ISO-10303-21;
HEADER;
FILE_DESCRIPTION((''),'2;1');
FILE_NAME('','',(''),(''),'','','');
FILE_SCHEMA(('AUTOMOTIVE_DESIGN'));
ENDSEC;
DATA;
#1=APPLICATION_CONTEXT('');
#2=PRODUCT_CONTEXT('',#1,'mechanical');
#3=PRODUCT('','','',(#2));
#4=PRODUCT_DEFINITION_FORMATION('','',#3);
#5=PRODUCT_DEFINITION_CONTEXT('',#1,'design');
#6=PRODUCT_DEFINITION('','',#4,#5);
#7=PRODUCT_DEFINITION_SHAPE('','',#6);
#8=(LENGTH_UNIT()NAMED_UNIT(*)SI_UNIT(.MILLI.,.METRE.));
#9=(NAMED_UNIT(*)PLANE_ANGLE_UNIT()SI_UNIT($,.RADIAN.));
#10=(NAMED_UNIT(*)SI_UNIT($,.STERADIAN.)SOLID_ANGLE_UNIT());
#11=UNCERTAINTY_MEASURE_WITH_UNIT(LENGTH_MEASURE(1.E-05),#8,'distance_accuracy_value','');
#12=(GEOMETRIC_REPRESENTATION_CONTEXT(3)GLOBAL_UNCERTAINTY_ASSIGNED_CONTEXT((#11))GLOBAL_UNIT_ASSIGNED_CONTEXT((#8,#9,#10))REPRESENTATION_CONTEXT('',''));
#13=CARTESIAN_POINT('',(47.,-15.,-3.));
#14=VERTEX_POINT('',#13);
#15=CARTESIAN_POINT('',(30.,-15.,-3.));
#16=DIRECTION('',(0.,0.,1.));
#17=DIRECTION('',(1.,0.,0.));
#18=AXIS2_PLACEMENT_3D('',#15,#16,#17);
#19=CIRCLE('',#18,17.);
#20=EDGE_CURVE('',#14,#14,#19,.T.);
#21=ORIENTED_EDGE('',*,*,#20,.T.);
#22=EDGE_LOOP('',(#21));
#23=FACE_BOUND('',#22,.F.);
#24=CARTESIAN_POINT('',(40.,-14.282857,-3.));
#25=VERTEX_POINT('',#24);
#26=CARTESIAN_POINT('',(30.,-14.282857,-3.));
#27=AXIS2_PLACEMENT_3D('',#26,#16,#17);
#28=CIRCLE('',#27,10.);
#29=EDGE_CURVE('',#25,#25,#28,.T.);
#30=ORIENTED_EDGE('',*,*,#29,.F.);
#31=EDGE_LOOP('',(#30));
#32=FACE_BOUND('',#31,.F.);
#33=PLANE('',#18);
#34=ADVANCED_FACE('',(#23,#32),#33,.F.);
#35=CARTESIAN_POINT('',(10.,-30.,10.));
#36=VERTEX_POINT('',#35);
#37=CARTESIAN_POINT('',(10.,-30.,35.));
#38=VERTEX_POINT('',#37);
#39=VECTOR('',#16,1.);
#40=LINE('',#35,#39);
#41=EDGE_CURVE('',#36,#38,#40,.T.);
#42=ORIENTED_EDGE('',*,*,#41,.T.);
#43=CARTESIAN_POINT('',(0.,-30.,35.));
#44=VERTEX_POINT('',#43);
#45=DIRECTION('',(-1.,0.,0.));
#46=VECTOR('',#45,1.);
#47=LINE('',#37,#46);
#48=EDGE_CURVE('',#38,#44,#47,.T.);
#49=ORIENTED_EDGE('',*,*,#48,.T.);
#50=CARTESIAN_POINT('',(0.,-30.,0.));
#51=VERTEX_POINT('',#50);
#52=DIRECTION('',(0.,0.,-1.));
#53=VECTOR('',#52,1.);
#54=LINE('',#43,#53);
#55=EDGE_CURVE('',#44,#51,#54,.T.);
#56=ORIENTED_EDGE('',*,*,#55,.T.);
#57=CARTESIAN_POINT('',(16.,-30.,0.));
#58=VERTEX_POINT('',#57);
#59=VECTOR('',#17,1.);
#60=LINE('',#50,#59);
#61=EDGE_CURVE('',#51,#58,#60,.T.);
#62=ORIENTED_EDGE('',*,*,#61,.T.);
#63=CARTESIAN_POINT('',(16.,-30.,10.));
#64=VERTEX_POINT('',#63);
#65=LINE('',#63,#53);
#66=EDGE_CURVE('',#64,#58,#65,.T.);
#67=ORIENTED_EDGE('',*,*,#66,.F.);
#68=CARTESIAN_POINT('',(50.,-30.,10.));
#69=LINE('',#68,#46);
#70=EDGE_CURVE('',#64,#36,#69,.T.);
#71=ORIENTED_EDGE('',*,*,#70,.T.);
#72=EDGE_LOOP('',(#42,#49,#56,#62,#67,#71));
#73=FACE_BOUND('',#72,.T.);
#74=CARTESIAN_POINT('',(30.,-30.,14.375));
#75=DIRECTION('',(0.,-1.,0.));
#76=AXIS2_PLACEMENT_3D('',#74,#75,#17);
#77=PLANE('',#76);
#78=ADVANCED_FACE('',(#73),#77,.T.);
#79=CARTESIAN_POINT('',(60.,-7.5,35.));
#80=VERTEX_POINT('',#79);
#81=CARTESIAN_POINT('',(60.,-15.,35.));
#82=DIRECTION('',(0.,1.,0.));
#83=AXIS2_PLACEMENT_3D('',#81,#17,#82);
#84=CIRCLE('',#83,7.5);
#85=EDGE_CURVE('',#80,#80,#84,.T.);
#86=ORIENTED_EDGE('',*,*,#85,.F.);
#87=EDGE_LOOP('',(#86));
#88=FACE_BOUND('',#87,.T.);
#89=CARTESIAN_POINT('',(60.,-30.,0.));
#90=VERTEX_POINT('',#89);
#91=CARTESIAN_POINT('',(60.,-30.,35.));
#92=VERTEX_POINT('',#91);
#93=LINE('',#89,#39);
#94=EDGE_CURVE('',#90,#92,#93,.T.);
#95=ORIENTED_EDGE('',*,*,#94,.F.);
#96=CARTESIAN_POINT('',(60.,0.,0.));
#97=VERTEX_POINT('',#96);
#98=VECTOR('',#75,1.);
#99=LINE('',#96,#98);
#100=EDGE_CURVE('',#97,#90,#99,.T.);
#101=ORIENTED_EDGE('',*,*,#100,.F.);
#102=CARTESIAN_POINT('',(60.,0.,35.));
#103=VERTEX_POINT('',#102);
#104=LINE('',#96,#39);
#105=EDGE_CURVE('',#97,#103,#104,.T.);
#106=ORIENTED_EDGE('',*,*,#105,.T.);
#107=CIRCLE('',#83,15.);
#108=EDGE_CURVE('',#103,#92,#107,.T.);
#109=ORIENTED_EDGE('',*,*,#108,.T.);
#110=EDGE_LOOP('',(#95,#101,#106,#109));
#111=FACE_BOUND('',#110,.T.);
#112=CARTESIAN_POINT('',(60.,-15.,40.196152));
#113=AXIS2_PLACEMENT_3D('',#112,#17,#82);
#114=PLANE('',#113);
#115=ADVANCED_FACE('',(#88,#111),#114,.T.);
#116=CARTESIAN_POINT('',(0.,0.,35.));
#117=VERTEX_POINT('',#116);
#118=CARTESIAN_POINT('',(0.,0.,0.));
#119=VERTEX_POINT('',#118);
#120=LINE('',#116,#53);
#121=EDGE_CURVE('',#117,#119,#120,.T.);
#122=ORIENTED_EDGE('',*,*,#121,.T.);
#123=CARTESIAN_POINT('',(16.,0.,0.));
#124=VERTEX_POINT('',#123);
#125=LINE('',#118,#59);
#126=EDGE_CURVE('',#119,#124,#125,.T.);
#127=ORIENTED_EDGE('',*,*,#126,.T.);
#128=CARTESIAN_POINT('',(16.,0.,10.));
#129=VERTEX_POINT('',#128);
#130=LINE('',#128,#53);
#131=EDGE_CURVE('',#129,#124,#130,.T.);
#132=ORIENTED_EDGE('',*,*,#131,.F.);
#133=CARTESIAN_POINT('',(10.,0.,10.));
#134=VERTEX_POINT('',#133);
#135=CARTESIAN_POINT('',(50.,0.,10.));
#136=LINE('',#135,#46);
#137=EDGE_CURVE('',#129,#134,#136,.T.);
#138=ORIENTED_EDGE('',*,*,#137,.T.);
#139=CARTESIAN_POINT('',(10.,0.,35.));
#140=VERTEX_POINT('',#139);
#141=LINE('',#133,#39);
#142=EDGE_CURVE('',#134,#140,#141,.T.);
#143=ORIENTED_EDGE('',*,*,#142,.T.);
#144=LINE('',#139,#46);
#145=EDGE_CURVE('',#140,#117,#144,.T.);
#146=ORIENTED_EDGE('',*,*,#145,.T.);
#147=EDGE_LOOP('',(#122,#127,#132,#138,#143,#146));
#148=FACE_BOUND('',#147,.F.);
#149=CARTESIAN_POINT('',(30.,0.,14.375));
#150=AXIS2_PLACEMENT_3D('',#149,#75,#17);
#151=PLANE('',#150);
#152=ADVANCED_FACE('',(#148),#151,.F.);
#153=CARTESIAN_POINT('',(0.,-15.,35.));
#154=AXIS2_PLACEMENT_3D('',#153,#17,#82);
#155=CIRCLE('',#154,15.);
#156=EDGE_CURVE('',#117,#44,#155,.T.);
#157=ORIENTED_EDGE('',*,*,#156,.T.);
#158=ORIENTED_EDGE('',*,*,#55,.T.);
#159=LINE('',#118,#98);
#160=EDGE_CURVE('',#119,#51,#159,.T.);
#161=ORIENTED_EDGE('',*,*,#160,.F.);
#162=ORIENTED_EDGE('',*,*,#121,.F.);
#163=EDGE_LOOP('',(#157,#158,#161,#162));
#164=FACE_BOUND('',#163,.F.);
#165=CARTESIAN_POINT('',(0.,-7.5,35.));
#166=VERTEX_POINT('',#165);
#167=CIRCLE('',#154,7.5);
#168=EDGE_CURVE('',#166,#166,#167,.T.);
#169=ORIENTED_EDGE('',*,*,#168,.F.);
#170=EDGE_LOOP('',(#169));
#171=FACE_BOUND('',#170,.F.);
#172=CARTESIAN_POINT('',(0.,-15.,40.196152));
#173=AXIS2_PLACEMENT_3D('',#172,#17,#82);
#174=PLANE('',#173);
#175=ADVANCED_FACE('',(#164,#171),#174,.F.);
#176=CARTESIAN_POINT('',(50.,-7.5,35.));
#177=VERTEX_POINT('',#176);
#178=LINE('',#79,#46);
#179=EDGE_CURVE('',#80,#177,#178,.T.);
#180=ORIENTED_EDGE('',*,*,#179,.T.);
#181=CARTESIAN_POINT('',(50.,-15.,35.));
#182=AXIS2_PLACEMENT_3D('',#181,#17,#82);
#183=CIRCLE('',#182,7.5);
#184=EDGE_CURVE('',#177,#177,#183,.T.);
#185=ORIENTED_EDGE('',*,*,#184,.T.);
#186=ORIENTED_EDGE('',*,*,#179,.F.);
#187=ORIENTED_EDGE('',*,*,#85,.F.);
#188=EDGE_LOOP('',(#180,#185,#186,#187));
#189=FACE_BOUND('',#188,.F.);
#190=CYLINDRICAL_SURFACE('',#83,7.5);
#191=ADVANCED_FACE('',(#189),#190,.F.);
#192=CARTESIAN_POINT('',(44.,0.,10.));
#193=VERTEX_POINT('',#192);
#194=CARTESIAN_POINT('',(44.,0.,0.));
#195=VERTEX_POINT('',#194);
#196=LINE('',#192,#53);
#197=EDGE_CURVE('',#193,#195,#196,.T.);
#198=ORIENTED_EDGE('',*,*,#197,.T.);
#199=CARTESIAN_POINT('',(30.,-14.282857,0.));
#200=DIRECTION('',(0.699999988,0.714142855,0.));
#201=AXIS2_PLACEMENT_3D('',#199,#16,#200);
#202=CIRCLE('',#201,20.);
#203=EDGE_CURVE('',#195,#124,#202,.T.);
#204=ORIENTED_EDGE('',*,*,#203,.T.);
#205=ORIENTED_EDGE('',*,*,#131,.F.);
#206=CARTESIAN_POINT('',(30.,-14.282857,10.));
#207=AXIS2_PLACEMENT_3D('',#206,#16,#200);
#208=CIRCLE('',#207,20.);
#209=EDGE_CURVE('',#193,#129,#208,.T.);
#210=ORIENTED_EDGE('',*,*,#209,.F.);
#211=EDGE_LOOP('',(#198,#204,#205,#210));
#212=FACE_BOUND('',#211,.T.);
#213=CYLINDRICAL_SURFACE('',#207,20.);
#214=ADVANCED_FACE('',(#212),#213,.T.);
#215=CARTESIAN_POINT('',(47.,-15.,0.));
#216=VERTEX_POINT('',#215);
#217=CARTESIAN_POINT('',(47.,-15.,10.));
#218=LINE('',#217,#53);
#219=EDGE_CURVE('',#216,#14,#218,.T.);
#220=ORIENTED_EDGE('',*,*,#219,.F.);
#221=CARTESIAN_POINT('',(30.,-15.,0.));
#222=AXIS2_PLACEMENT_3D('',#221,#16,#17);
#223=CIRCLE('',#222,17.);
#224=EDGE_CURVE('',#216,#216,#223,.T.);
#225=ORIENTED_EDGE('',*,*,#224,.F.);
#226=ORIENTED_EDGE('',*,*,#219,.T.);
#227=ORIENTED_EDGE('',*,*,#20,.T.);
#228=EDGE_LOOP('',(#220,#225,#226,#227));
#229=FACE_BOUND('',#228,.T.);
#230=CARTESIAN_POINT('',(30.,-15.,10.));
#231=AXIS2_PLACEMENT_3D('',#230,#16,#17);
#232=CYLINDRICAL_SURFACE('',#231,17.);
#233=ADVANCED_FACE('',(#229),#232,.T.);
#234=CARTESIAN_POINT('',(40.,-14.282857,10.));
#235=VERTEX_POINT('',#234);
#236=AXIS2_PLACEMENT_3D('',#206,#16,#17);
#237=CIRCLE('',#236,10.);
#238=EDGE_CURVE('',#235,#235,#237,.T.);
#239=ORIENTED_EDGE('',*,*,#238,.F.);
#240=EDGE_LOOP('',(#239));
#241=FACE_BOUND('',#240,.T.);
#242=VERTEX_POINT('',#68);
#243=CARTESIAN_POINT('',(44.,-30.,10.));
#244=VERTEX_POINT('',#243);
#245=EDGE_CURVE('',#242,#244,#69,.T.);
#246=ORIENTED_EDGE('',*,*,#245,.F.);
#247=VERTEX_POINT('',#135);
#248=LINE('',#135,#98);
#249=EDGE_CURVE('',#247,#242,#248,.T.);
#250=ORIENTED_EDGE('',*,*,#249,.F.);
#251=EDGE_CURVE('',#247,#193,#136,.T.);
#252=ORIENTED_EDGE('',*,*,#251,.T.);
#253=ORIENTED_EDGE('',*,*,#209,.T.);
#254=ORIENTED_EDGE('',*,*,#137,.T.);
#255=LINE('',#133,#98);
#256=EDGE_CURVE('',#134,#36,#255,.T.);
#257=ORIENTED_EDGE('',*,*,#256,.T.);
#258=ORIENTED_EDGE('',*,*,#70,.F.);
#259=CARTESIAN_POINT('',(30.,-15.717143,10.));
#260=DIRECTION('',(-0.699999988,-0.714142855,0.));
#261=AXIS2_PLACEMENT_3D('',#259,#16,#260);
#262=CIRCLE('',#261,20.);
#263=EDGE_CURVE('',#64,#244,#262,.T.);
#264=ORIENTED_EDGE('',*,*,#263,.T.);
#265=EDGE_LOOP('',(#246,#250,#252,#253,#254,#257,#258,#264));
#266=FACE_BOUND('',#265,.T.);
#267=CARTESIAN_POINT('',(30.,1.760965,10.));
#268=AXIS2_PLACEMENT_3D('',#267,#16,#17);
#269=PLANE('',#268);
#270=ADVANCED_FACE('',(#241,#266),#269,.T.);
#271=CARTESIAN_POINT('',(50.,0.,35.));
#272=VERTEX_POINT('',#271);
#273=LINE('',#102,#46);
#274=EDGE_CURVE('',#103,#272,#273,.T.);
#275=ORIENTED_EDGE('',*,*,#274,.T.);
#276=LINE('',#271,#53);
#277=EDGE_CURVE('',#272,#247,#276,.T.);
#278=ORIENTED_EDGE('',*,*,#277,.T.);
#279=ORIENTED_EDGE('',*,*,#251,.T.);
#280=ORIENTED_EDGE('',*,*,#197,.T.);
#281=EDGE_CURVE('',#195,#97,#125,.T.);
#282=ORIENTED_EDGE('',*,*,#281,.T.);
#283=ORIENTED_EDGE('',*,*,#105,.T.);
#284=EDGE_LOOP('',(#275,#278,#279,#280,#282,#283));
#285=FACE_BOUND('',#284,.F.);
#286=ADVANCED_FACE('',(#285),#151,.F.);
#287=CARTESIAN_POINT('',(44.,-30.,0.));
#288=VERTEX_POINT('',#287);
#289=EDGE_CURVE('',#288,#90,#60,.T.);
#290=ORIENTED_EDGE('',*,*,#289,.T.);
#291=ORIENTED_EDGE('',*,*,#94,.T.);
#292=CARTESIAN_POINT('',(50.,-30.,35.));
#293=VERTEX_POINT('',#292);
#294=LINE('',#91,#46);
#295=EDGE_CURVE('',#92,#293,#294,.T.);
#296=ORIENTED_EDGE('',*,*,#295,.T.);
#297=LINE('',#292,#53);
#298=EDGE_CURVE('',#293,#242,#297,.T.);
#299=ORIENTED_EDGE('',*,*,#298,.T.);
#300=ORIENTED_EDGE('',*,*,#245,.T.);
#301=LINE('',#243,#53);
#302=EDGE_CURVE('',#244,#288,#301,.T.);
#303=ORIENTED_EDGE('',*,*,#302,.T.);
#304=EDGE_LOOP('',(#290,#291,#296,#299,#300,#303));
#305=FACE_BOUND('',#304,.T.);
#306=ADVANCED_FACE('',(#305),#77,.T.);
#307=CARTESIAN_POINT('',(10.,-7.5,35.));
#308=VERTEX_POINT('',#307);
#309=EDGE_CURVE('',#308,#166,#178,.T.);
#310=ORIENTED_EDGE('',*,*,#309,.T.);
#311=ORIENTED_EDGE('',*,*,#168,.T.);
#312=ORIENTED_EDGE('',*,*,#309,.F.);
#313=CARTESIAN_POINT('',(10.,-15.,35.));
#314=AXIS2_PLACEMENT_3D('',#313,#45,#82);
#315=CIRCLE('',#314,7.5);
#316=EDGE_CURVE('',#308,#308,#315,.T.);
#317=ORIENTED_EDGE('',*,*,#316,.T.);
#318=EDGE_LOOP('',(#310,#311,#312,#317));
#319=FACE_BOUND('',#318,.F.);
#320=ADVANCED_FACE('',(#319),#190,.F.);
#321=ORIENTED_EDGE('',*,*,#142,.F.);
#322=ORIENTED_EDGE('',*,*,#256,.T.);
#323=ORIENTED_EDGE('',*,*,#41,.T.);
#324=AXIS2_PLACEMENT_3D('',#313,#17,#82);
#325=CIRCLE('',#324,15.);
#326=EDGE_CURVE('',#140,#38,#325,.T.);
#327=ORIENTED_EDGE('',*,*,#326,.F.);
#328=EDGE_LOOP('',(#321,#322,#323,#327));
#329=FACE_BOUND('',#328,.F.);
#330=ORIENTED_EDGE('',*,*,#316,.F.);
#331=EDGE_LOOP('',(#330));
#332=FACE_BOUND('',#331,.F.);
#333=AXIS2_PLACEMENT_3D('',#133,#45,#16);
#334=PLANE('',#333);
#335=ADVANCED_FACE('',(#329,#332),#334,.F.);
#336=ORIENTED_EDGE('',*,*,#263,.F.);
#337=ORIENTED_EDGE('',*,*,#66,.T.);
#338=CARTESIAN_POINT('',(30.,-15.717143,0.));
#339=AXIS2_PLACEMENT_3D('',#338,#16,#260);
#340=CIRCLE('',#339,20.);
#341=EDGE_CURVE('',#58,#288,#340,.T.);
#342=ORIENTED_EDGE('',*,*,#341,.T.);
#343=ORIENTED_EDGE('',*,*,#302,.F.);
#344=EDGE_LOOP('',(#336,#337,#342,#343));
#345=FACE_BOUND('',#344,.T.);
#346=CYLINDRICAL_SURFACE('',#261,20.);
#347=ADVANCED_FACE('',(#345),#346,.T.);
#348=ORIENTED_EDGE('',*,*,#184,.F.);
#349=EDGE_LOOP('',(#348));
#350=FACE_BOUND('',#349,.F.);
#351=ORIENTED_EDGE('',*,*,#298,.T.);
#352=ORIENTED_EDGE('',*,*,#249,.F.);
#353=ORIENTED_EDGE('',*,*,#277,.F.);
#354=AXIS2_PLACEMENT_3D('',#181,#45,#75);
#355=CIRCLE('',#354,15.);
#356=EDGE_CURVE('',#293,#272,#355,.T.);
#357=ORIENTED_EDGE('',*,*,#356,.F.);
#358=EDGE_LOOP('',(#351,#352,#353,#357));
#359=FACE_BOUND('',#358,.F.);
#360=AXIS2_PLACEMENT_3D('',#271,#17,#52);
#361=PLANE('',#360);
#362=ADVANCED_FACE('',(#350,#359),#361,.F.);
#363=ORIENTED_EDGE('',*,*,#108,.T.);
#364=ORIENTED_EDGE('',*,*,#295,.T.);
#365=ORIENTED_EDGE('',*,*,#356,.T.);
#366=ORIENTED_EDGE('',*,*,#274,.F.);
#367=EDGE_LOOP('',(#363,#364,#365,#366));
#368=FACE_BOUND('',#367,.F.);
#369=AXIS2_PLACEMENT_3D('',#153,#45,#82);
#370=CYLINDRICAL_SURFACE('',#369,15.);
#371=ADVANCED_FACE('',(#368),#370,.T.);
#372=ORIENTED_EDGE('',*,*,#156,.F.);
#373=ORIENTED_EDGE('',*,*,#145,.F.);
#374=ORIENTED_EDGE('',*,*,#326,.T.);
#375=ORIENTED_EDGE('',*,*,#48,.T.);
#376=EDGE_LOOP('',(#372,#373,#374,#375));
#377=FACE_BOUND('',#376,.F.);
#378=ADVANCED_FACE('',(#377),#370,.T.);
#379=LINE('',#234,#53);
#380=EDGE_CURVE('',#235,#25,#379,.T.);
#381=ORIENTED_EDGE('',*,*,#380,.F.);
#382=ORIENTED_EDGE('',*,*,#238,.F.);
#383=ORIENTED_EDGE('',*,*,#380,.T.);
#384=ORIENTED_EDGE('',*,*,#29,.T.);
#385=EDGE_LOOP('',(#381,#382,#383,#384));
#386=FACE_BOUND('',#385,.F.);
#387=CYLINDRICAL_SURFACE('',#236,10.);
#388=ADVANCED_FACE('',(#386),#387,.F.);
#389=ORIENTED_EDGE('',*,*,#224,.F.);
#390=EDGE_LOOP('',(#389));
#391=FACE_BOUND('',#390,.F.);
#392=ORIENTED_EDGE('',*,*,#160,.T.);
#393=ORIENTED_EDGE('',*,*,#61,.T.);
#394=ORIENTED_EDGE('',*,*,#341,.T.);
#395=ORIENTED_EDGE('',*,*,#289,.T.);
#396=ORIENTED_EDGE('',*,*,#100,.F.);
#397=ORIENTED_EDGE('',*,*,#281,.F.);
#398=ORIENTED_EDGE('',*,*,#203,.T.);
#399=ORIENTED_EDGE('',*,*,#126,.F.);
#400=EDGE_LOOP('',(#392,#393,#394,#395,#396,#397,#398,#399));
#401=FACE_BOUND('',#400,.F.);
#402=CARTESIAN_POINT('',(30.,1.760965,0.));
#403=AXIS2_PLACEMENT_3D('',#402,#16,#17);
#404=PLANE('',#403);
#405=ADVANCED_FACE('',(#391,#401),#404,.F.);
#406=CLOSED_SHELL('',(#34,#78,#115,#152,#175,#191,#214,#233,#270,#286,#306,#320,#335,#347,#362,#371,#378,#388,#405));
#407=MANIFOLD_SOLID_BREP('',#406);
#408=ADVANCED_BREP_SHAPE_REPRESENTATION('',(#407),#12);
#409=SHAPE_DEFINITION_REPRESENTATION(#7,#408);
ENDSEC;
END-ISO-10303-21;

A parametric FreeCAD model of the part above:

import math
import FreeCAD as App
import Part
import Sketcher

V = App.Vector
Q = App.Units.Quantity


def add_polygon(sketch, points):
    """Adds a closed chain of lines whose ends are joined by coincident constraints."""
    first, n = sketch.GeometryCount, len(points)
    for a, b in zip(points, points[1:] + points[:1]):
        sketch.addGeometry(Part.LineSegment(App.Vector(*a, 0), App.Vector(*b, 0)), False)
    for i in range(n):
        sketch.addConstraint(Sketcher.Constraint("Coincident", first + i, 2, first + (i + 1) % n, 1))

doc = App.newDocument("Part")
body = doc.addObject("PartDesign::Body", "Body")

# Sketch on XZ plane
sketch1 = body.newObject("Sketcher::SketchObject", "Sketch")
sketch1.AttachmentSupport = (doc.getObject("XZ_Plane"), [""])
sketch1.MapMode = "FlatFace"
add_polygon(sketch1, [(0, 35), (0, 0), (60, 0), (60, 35), (50, 35), (50, 10), (10, 10), (10, 35)])  # lines 0-7
sketch1.addConstraint(Sketcher.Constraint("Vertical", 0))
sketch1.addConstraint(Sketcher.Constraint("Horizontal", 1))
sketch1.addConstraint(Sketcher.Constraint("Vertical", 2))
sketch1.addConstraint(Sketcher.Constraint("Horizontal", 3))
sketch1.addConstraint(Sketcher.Constraint("Vertical", 4))
sketch1.addConstraint(Sketcher.Constraint("Horizontal", 5))
sketch1.addConstraint(Sketcher.Constraint("Vertical", 6))
sketch1.addConstraint(Sketcher.Constraint("Horizontal", 7))
sketch1.addConstraint(Sketcher.Constraint("Coincident", 0, 2, -1, 1))
sketch1.addConstraint(Sketcher.Constraint("Horizontal", 3, 2, 6, 2))
sketch1.addConstraint(Sketcher.Constraint("Equal", 3, 7))
sketch1.addConstraint(Sketcher.Constraint("DistanceX", 1, 1, 1, 2, Q("60 mm")))
sketch1.addConstraint(Sketcher.Constraint("DistanceX", 3, 2, 3, 1, Q("10 mm")))
sketch1.addConstraint(Sketcher.Constraint("DistanceY", 0, 2, 0, 1, Q("35 mm")))
sketch1.addConstraint(Sketcher.Constraint("DistanceY", 4, 2, 4, 1, Q("25 mm")))
pad1 = body.newObject("PartDesign::Pad", "Pad")
pad1.Profile = sketch1
pad1.Length = 30

# Sketch on YZ plane
sketch2 = body.newObject("Sketcher::SketchObject", "Sketch001")
sketch2.AttachmentSupport = (doc.getObject("YZ_Plane"), [""])
sketch2.MapMode = "FlatFace"
sketch2.addGeometry(Part.LineSegment(V(-30, 35, 0), V(0, 35, 0)), False)
sketch2.addGeometry(Part.ArcOfCircle(Part.Circle(V(-15, 35, 0), V(0, 0, 1), 15), math.radians(0), math.radians(180)), False)
sketch2.addConstraint(Sketcher.Constraint("Coincident", 0, 1, 1, 2))
sketch2.addConstraint(Sketcher.Constraint("Coincident", 1, 1, 0, 2))
sketch2.addConstraint(Sketcher.Constraint("Horizontal", 0))
sketch2.addConstraint(Sketcher.Constraint("PointOnObject", 1, 1, -2))
sketch2.addConstraint(Sketcher.Constraint("Horizontal", 1, 3, 0, 1))
sketch2.addConstraint(Sketcher.Constraint("Radius", 1, Q("15 mm")))
sketch2.addConstraint(Sketcher.Constraint("DistanceY", -1, 1, 1, 3, Q("35 mm")))
pad2 = body.newObject("PartDesign::Pad", "Pad001")
pad2.Profile = sketch2
pad2.Length = 60

# Sketch on YZ plane
sketch3 = body.newObject("Sketcher::SketchObject", "Sketch002")
sketch3.AttachmentSupport = (doc.getObject("YZ_Plane"), [""])
sketch3.MapMode = "FlatFace"
sketch3.AttachmentOffset = App.Placement(V(0, 0, 60), App.Rotation())
sketch3.addGeometry(Part.Circle(V(-15, 35, 0), V(0, 0, 1), 7.5), False)
sketch3.addConstraint(Sketcher.Constraint("Diameter", 0, Q("15 mm")))
sketch3.addConstraint(Sketcher.Constraint("DistanceX", 0, 3, -1, 1, Q("15 mm")))
sketch3.addConstraint(Sketcher.Constraint("DistanceY", -1, 1, 0, 3, Q("35 mm")))
pocket1 = body.newObject("PartDesign::Pocket", "Pocket")
pocket1.Profile = sketch3
pocket1.Type = "ThroughAll"

# Sketch on XZ plane
sketch4 = body.newObject("Sketcher::SketchObject", "Sketch003")
sketch4.AttachmentSupport = (doc.getObject("XZ_Plane"), [""])
sketch4.MapMode = "FlatFace"
add_polygon(sketch4, [(10, 50), (10, 10), (50, 10), (50, 50)])  # lines 0-3
sketch4.addConstraint(Sketcher.Constraint("Vertical", 0))
sketch4.addConstraint(Sketcher.Constraint("Horizontal", 1))
sketch4.addConstraint(Sketcher.Constraint("Vertical", 2))
sketch4.addConstraint(Sketcher.Constraint("Horizontal", 3))
sketch4.addConstraint(Sketcher.Constraint("Equal", 3, 0))
sketch4.addConstraint(Sketcher.Constraint("DistanceX", 1, 1, 1, 2, Q("40 mm")))
sketch4.addConstraint(Sketcher.Constraint("DistanceX", -1, 1, 0, 2, Q("10 mm")))
sketch4.addConstraint(Sketcher.Constraint("DistanceY", -1, 1, 0, 2, Q("10 mm")))
pocket2 = body.newObject("PartDesign::Pocket", "Pocket001")
pocket2.Profile = sketch4
pocket2.Type = "ThroughAll"
pocket2.Reversed = True

# Sketch on XY plane
sketch5 = body.newObject("Sketcher::SketchObject", "Sketch004")
sketch5.AttachmentSupport = (doc.getObject("XY_Plane"), [""])
sketch5.MapMode = "FlatFace"
sketch5.AttachmentOffset = App.Placement(V(0, 0, 10), App.Rotation())
sketch5.addGeometry(Part.Circle(V(30, -15, 0), V(0, 0, 1), 17), False)
sketch5.addConstraint(Sketcher.Constraint("Diameter", 0, Q("34 mm")))
sketch5.addConstraint(Sketcher.Constraint("DistanceX", -1, 1, 0, 3, Q("30 mm")))
sketch5.addConstraint(Sketcher.Constraint("DistanceY", 0, 3, -1, 1, Q("15 mm")))
pad3 = body.newObject("PartDesign::Pad", "Pad002")
pad3.Profile = sketch5
pad3.Length = 13
pad3.Reversed = True

# Sketch on XY plane
sketch6 = body.newObject("Sketcher::SketchObject", "Sketch005")
sketch6.AttachmentSupport = (doc.getObject("XY_Plane"), [""])
sketch6.MapMode = "FlatFace"
sketch6.AttachmentOffset = App.Placement(V(0, 0, 10), App.Rotation())
sketch6.addGeometry(Part.LineSegment(V(16, 0, 0), V(44, 0, 0)), False)
sketch6.addGeometry(Part.ArcOfCircle(Part.Circle(V(30, -14.282857, 0), V(0, 0, 1), 20), math.radians(45.572997), math.radians(134.427003)), False)
sketch6.addGeometry(Part.LineSegment(V(44, -30, 0), V(16, -30, 0)), False)
sketch6.addGeometry(Part.ArcOfCircle(Part.Circle(V(30, -15.717143, 0), V(0, 0, 1), 20), math.radians(-134.427003), math.radians(-45.572997)), False)
sketch6.addConstraint(Sketcher.Constraint("Coincident", 0, 1, 1, 2))
sketch6.addConstraint(Sketcher.Constraint("Coincident", 1, 1, 0, 2))
sketch6.addConstraint(Sketcher.Constraint("Coincident", 2, 1, 3, 2))
sketch6.addConstraint(Sketcher.Constraint("Coincident", 3, 1, 2, 2))
sketch6.addConstraint(Sketcher.Constraint("Horizontal", 0))
sketch6.addConstraint(Sketcher.Constraint("Horizontal", 2))
sketch6.addConstraint(Sketcher.Constraint("Equal", 1, 3))
sketch6.addConstraint(Sketcher.Constraint("PointOnObject", 0, 1, -1))
sketch6.addConstraint(Sketcher.Constraint("Vertical", 1, 3, 3, 3))
sketch6.addConstraint(Sketcher.Constraint("Vertical", 1, 1, 2, 1))
sketch6.addConstraint(Sketcher.Constraint("Radius", 1, Q("20 mm")))
sketch6.addConstraint(Sketcher.Constraint("DistanceX", 0, 1, 0, 2, Q("28 mm")))
sketch6.addConstraint(Sketcher.Constraint("DistanceX", -1, 1, 1, 3, Q("30 mm")))
sketch6.addConstraint(Sketcher.Constraint("DistanceY", 2, 1, -1, 1, Q("30 mm")))
pad4 = body.newObject("PartDesign::Pad", "Pad003")
pad4.Profile = sketch6
pad4.Length = 10
pad4.Reversed = True

# Sketch on XY plane
sketch7 = body.newObject("Sketcher::SketchObject", "Sketch006")
sketch7.AttachmentSupport = (doc.getObject("XY_Plane"), [""])
sketch7.MapMode = "FlatFace"
sketch7.AttachmentOffset = App.Placement(V(0, 0, 10), App.Rotation())
sketch7.addGeometry(Part.Circle(V(30, -14.282857, 0), V(0, 0, 1), 10), False)
sketch7.addConstraint(Sketcher.Constraint("Diameter", 0, Q("20 mm")))
sketch7.addConstraint(Sketcher.Constraint("DistanceX", -1, 1, 0, 3, Q("30 mm")))
sketch7.addConstraint(Sketcher.Constraint("DistanceY", 0, 3, -1, 1, Q("14.282857 mm")))
pocket3 = body.newObject("PartDesign::Pocket", "Pocket002")
pocket3.Profile = sketch7
pocket3.Type = "ThroughAll"

doc.recompute()
